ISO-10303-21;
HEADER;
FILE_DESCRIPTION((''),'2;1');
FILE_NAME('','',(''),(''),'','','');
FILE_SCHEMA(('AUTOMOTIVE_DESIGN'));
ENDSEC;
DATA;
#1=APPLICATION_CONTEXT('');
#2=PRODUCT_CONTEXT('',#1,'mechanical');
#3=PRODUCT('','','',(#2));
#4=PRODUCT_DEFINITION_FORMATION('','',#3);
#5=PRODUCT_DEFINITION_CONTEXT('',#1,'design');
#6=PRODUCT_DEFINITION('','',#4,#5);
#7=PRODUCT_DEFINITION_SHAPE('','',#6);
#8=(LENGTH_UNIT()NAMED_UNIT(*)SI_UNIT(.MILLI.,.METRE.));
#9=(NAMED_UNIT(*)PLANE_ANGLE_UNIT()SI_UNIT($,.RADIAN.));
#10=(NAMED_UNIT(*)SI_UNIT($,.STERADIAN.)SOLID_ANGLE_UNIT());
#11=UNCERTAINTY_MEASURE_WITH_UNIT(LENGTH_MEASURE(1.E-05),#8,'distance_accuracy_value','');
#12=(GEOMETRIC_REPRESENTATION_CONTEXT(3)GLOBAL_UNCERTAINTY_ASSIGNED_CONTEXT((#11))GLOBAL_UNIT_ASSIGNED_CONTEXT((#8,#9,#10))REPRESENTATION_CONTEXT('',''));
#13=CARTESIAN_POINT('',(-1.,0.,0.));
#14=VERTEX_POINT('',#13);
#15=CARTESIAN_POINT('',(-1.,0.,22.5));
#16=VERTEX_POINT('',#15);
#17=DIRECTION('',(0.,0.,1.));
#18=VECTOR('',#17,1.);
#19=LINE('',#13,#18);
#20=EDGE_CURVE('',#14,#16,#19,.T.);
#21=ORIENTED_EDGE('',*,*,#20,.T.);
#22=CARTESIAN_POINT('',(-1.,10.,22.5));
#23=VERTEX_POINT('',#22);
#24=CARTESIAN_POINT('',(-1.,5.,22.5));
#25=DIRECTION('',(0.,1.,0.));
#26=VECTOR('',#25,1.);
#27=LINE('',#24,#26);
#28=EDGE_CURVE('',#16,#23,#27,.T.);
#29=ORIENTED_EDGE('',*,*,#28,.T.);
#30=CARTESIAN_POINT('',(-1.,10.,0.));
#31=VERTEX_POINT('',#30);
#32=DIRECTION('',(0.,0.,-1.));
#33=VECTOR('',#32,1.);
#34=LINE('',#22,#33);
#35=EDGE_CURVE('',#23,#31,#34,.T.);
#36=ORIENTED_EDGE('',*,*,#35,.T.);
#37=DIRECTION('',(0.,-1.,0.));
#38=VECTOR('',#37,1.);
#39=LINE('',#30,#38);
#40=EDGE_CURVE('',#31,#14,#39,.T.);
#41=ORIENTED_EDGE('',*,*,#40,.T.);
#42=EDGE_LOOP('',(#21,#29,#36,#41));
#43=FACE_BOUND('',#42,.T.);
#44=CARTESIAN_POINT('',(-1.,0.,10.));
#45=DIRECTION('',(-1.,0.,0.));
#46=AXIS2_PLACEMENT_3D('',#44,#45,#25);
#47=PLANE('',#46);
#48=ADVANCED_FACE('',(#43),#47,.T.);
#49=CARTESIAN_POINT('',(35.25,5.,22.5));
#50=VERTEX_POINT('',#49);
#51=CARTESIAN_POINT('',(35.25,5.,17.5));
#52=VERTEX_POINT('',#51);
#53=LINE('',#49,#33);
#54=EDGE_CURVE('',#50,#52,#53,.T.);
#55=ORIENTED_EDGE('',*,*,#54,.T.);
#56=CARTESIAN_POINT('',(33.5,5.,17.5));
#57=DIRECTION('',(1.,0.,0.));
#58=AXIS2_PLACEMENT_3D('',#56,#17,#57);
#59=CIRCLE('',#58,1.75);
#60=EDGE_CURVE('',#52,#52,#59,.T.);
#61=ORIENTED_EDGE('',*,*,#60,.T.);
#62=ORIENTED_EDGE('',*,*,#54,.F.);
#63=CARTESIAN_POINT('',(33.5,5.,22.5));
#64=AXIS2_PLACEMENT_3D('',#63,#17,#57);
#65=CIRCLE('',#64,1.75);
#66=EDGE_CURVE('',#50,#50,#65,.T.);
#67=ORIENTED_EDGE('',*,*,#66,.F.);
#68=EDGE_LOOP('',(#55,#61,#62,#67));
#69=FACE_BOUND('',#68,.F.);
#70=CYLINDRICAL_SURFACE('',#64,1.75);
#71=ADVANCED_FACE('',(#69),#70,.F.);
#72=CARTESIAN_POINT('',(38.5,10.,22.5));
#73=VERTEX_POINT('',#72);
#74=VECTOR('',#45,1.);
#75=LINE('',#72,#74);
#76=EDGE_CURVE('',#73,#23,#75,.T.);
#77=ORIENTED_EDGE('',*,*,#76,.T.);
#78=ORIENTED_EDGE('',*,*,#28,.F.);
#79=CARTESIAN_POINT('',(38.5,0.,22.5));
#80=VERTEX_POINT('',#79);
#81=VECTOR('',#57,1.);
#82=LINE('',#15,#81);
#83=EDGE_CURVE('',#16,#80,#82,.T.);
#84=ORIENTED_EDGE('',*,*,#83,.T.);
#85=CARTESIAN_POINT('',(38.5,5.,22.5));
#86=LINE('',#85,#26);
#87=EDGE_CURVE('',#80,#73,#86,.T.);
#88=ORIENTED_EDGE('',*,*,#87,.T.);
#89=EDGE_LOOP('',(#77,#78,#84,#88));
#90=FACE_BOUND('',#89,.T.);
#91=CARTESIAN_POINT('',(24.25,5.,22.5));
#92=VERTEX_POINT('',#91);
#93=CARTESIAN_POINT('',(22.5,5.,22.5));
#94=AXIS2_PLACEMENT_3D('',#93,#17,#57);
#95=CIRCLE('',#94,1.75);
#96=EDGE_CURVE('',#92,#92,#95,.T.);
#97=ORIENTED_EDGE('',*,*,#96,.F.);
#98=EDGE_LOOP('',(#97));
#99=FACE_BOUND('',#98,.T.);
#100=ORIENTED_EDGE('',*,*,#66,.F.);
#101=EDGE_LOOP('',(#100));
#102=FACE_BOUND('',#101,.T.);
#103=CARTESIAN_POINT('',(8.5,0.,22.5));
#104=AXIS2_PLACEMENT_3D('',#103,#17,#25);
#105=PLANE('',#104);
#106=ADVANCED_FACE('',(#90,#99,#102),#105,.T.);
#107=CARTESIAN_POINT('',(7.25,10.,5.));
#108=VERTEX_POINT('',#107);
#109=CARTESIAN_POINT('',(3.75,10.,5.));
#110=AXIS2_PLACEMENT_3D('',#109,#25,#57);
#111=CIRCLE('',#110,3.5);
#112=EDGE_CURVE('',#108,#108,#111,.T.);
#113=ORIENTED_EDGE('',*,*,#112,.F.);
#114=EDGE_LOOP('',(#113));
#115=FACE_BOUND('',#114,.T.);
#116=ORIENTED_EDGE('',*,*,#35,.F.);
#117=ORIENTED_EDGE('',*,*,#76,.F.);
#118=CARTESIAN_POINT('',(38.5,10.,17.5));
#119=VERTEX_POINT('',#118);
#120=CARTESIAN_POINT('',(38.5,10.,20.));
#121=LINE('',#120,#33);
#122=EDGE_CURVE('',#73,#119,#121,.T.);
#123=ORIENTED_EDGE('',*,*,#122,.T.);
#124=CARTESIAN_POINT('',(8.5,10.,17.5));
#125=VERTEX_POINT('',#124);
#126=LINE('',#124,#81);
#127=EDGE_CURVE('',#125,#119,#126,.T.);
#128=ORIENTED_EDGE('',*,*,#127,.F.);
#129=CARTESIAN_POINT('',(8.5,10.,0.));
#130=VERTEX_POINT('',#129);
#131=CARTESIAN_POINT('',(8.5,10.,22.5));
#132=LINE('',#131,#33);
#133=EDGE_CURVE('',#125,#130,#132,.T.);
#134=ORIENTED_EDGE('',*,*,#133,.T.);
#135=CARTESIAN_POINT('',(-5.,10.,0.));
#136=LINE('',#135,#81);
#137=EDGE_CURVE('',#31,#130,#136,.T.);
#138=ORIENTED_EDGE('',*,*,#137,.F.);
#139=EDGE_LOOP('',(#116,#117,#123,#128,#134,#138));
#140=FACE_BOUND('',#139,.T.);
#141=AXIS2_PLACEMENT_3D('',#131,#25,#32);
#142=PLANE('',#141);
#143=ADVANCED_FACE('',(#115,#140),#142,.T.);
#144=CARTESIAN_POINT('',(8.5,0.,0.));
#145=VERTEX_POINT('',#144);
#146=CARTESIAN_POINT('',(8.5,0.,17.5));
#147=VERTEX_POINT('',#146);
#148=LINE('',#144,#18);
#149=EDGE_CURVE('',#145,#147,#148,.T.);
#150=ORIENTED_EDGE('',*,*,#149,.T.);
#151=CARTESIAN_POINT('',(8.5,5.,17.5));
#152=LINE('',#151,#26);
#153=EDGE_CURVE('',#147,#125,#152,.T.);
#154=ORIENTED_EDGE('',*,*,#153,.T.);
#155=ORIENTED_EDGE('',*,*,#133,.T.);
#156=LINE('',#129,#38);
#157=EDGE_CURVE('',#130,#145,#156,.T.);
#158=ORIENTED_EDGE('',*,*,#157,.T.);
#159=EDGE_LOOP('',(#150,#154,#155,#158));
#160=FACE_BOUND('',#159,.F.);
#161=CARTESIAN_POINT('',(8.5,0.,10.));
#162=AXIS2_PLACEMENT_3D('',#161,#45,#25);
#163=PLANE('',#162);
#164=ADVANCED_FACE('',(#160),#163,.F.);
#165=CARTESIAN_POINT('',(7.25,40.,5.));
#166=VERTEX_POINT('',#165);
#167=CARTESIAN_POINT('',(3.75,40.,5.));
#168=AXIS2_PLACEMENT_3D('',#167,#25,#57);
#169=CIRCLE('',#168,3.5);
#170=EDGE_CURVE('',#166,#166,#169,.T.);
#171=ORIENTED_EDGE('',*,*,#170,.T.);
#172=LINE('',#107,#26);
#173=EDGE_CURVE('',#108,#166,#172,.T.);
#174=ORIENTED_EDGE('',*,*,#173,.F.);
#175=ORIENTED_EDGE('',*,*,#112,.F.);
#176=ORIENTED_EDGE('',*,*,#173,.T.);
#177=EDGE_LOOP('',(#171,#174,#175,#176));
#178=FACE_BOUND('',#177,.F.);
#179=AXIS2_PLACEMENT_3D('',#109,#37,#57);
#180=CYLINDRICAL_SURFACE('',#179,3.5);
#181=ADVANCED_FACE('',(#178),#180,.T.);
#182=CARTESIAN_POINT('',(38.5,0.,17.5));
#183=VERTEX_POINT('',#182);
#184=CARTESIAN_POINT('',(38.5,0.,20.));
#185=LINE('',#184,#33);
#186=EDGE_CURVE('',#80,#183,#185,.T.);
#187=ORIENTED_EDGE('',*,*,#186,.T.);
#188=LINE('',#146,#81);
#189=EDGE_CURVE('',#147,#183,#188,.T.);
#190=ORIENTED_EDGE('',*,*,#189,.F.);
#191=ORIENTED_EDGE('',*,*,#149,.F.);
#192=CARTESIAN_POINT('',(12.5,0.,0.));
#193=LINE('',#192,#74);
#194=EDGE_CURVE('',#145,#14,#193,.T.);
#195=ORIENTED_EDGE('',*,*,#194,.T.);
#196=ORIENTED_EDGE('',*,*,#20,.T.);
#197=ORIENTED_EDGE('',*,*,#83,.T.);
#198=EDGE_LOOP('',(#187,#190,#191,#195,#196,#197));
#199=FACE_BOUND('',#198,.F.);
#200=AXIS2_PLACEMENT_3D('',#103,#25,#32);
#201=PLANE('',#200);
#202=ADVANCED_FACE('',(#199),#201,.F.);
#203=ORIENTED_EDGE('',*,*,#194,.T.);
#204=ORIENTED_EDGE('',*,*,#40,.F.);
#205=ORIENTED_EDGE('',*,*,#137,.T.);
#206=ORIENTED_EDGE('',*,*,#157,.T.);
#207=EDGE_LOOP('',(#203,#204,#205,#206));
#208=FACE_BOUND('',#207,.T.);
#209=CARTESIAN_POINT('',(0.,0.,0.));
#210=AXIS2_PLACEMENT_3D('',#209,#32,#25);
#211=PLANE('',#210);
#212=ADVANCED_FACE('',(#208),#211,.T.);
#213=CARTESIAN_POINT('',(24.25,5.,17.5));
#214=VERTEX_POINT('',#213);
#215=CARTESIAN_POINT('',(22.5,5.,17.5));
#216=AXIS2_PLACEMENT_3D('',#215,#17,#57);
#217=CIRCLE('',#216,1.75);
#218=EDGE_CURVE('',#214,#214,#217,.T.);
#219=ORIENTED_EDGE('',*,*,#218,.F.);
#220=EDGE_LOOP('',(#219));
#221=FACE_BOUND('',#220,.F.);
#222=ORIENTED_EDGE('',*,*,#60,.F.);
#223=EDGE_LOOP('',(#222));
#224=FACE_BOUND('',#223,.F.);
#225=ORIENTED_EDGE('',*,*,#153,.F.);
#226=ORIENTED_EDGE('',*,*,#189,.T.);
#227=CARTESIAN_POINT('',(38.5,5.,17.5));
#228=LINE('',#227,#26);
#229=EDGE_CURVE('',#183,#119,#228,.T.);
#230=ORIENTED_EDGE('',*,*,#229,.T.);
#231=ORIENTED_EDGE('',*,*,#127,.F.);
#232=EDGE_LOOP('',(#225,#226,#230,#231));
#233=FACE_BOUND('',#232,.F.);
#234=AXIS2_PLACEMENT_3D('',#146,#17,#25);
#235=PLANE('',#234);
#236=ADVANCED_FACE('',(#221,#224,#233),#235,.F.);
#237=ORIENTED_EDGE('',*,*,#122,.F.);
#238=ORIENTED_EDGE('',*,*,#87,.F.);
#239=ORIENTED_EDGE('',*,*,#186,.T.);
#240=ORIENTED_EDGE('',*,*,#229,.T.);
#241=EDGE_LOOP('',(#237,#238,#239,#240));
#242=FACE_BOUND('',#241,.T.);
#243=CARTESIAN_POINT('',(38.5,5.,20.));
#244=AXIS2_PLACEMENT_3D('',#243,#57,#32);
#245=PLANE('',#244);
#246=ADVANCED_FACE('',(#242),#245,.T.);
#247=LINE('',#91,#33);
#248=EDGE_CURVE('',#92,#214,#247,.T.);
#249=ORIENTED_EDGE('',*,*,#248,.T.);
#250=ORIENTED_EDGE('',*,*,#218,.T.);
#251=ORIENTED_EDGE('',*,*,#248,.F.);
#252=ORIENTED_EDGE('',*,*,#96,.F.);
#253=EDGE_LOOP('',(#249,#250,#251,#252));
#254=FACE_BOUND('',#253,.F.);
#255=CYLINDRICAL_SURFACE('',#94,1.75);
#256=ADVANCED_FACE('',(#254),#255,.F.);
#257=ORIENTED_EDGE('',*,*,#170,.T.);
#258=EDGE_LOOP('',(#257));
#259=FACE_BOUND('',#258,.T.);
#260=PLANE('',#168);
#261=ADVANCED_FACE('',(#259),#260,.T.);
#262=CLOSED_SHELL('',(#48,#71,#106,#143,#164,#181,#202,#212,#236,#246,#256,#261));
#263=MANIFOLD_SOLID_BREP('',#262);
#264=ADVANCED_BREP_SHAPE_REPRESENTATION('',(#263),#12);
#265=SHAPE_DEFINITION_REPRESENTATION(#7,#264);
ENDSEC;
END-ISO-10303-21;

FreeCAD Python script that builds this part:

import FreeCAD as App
import Part
import Sketcher
from FreeCAD import Vector
Q = App.Units.Quantity

doc = App.newDocument("Part")
body = doc.addObject("PartDesign::Body", "Body")

# Sketch on XY plane
sketch1 = body.newObject("Sketcher::SketchObject", "Sketch")
sketch1.AttachmentSupport = (doc.getObject("XY_Plane"), [""])
sketch1.MapMode = "FlatFace"
sketch1.addGeometry([
    Part.LineSegment(Vector(0, 10, 0), Vector(0, 0, 0)),
    Part.LineSegment(Vector(0, 0, 0), Vector(12, 0, 0)),
    Part.LineSegment(Vector(12, 0, 0), Vector(12, 10, 0)),
    Part.LineSegment(Vector(12, 10, 0), Vector(0, 10, 0)),
], False)
sketch1.addConstraint([
    Sketcher.Constraint("Coincident", 0, 2, 1, 1),
    Sketcher.Constraint("Coincident", 1, 2, 2, 1),
    Sketcher.Constraint("Coincident", 2, 2, 3, 1),
    Sketcher.Constraint("Coincident", 3, 2, 0, 1),
    Sketcher.Constraint("Vertical", 0),
    Sketcher.Constraint("Horizontal", 1),
    Sketcher.Constraint("Vertical", 2),
    Sketcher.Constraint("Horizontal", 3),
    Sketcher.Constraint("Coincident", 0, 2, -1, 1),
    Sketcher.Constraint("DistanceY", 0, 2, 0, 1, Q("10 mm")),
    Sketcher.Constraint("DistanceX", 1, 1, 1, 2, Q("12.5 mm")),
])
pad1 = body.newObject("PartDesign::Pad", "Pad")
pad1.Profile = sketch1
pad1.Length = 10

# Sketch on YZ plane
sketch2 = body.newObject("Sketcher::SketchObject", "Sketch001")
sketch2.AttachmentSupport = (doc.getObject("YZ_Plane"), [""])
sketch2.MapMode = "FlatFace"
sketch2.addGeometry([
    Part.LineSegment(Vector(10, 0, 0), Vector(0, 0, 0)),
    Part.LineSegment(Vector(0, 0, 0), Vector(0, 10, 0)),
    Part.LineSegment(Vector(0, 10, 0), Vector(10, 10, 0)),
    Part.LineSegment(Vector(10, 10, 0), Vector(10, 0, 0)),
], False)
sketch2.addConstraint([
    Sketcher.Constraint("Coincident", 0, 2, 1, 1),
    Sketcher.Constraint("Coincident", 1, 2, 2, 1),
    Sketcher.Constraint("Coincident", 2, 2, 3, 1),
    Sketcher.Constraint("Coincident", 3, 2, 0, 1),
    Sketcher.Constraint("Horizontal", 0),
    Sketcher.Constraint("Vertical", 1),
    Sketcher.Constraint("Horizontal", 2),
    Sketcher.Constraint("Vertical", 3),
    Sketcher.Constraint("Coincident", 0, 2, -1, 1),
    Sketcher.Constraint("Equal", 2, 1),
    Sketcher.Constraint("DistanceX", 0, 2, 0, 1, Q("10 mm")),
])
pad2 = body.newObject("PartDesign::Pad", "Pad001")
pad2.Profile = sketch2
pad2.Length = 5
pad2.Reversed = True

# Sketch on XZ plane
sketch3 = body.newObject("Sketcher::SketchObject", "Sketch002")
sketch3.AttachmentSupport = (doc.getObject("XZ_Plane"), [""])
sketch3.MapMode = "FlatFace"
sketch3.AttachmentOffset = App.Placement(Vector(0, 0, -10), App.Rotation())
sketch3.addGeometry(Part.Circle(Vector(3.8, 5, 0), Vector(0, 0, 1), 3.5), False)
sketch3.addConstraint([
    Sketcher.Constraint("Diameter", 0, Q("7 mm")),
    Sketcher.Constraint("DistanceY", -1, 1, 0, 3, Q("5 mm")),
    Sketcher.Constraint("DistanceX", -1, 1, 0, 3, Q("3.75 mm")),
])
pad3 = body.newObject("PartDesign::Pad", "Pad002")
pad3.Profile = sketch3
pad3.Length = 30
pad3.Reversed = True

# Sketch on XZ plane
sketch4 = body.newObject("Sketcher::SketchObject", "Sketch003")
sketch4.AttachmentSupport = (doc.getObject("XZ_Plane"), [""])
sketch4.MapMode = "FlatFace"
sketch4.AttachmentOffset = App.Placement(Vector(0, 0, -10), App.Rotation())
sketch4.addGeometry([
    Part.LineSegment(Vector(8.5, 0, 0), Vector(8.5, 10, 0)),  # 0
    Part.LineSegment(Vector(8.5, 10, 0), Vector(12.5, 10, 0)),  # 1
    Part.LineSegment(Vector(12.5, 10, 0), Vector(12.5, 0, 0)),  # 2
    Part.LineSegment(Vector(12.5, 0, 0), Vector(8.5, 0, 0)),  # 3
    Part.LineSegment(Vector(-5, 0, 0), Vector(-5, 10, 0)),  # 4
    Part.LineSegment(Vector(-5, 10, 0), Vector(-1, 10, 0)),  # 5
    Part.LineSegment(Vector(-1, 10, 0), Vector(-1, 0, 0)),  # 6
    Part.LineSegment(Vector(-1, 0, 0), Vector(-5, 0, 0)),  # 7
], False)
sketch4.addConstraint([
    Sketcher.Constraint("Coincident", 0, 2, 1, 1),
    Sketcher.Constraint("Coincident", 1, 2, 2, 1),
    Sketcher.Constraint("Coincident", 2, 2, 3, 1),
    Sketcher.Constraint("Coincident", 3, 2, 0, 1),
    Sketcher.Constraint("Coincident", 4, 2, 5, 1),
    Sketcher.Constraint("Coincident", 5, 2, 6, 1),
    Sketcher.Constraint("Coincident", 6, 2, 7, 1),
    Sketcher.Constraint("Coincident", 7, 2, 4, 1),
    Sketcher.Constraint("Vertical", 0),
    Sketcher.Constraint("Horizontal", 1),
    Sketcher.Constraint("Vertical", 2),
    Sketcher.Constraint("Horizontal", 3),
    Sketcher.Constraint("Vertical", 4),
    Sketcher.Constraint("Horizontal", 5),
    Sketcher.Constraint("Vertical", 6),
    Sketcher.Constraint("Horizontal", 7),
    Sketcher.Constraint("PointOnObject", 2, 2, -1),
    Sketcher.Constraint("PointOnObject", 6, 2, -1),
    Sketcher.Constraint("Horizontal", 1, 2, 4, 2),
    Sketcher.Constraint("Equal", 3, 5),
    Sketcher.Constraint("DistanceX", 1, 1, 1, 2, Q("4 mm")),
    Sketcher.Constraint("DistanceY", 0, 1, 0, 2, Q("10 mm")),
    Sketcher.Constraint("DistanceX", 4, 2, -1, 1, Q("5 mm")),
    Sketcher.Constraint("DistanceX", -1, 1, 0, 2, Q("8.5 mm")),
])
pocket1 = body.newObject("PartDesign::Pocket", "Pocket")
pocket1.Profile = sketch4
pocket1.Type = "ThroughAll"
pocket1.Reversed = True

# Sketch on XY plane
sketch5 = body.newObject("Sketcher::SketchObject", "Sketch004")
sketch5.AttachmentSupport = (doc.getObject("XY_Plane"), [""])
sketch5.MapMode = "FlatFace"
sketch5.AttachmentOffset = App.Placement(Vector(0, 0, 10), App.Rotation())
sketch5.addGeometry([
    Part.LineSegment(Vector(-1, 10, 0), Vector(-1, 0, 0)),
    Part.LineSegment(Vector(-1, 0, 0), Vector(8, 0, 0)),
    Part.LineSegment(Vector(8, 0, 0), Vector(8, 10, 0)),
    Part.LineSegment(Vector(8, 10, 0), Vector(-1, 10, 0)),
], False)
sketch5.addConstraint([
    Sketcher.Constraint("Coincident", 0, 2, 1, 1),
    Sketcher.Constraint("Coincident", 1, 2, 2, 1),
    Sketcher.Constraint("Coincident", 2, 2, 3, 1),
    Sketcher.Constraint("Coincident", 3, 2, 0, 1),
    Sketcher.Constraint("Vertical", 0),
    Sketcher.Constraint("Horizontal", 1),
    Sketcher.Constraint("Vertical", 2),
    Sketcher.Constraint("Horizontal", 3),
    Sketcher.Constraint("PointOnObject", 0, 2, -1),
    Sketcher.Constraint("DistanceY", 0, 2, 0, 1, Q("10 mm")),
    Sketcher.Constraint("DistanceX", 1, 1, 1, 2, Q("9.5 mm")),
    Sketcher.Constraint("DistanceX", 0, 2, -1, 1, Q("1 mm")),
])
pad4 = body.newObject("PartDesign::Pad", "Pad003")
pad4.Profile = sketch5
pad4.Length = 12.5

# Sketch on YZ plane
sketch6 = body.newObject("Sketcher::SketchObject", "Sketch005")
sketch6.AttachmentSupport = (doc.getObject("YZ_Plane"), [""])
sketch6.MapMode = "FlatFace"
sketch6.AttachmentOffset = App.Placement(Vector(0, 0, 8.5), App.Rotation())
sketch6.addGeometry([
    Part.LineSegment(Vector(10, 22, 0), Vector(0, 22, 0)),
    Part.LineSegment(Vector(0, 22, 0), Vector(0, 18, 0)),
    Part.LineSegment(Vector(0, 18, 0), Vector(10, 18, 0)),
    Part.LineSegment(Vector(10, 18, 0), Vector(10, 22, 0)),
], False)
sketch6.addConstraint([
    Sketcher.Constraint("Coincident", 0, 2, 1, 1),
    Sketcher.Constraint("Coincident", 1, 2, 2, 1),
    Sketcher.Constraint("Coincident", 2, 2, 3, 1),
    Sketcher.Constraint("Coincident", 3, 2, 0, 1),
    Sketcher.Constraint("Horizontal", 0),
    Sketcher.Constraint("Vertical", 1),
    Sketcher.Constraint("Horizontal", 2),
    Sketcher.Constraint("Vertical", 3),
    Sketcher.Constraint("PointOnObject", 0, 2, -2),
    Sketcher.Constraint("DistanceX", 0, 2, 0, 1, Q("10 mm")),
    Sketcher.Constraint("DistanceY", 1, 2, 1, 1, Q("5 mm")),
    Sketcher.Constraint("DistanceY", -1, 1, 0, 2, Q("22.5 mm")),
])
pad5 = body.newObject("PartDesign::Pad", "Pad004")
pad5.Profile = sketch6
pad5.Length = 30

# Sketch on XY plane
sketch7 = body.newObject("Sketcher::SketchObject", "Sketch006")
sketch7.AttachmentSupport = (doc.getObject("XY_Plane"), [""])
sketch7.MapMode = "FlatFace"
sketch7.AttachmentOffset = App.Placement(Vector(0, 0, 22.5), App.Rotation())
sketch7.addGeometry([
    Part.Circle(Vector(22.5, 5, 0), Vector(0, 0, 1), 1.8),
    Part.Circle(Vector(33.5, 5, 0), Vector(0, 0, 1), 1.8),
], False)
sketch7.addConstraint([
    Sketcher.Constraint("Equal", 0, 1),
    Sketcher.Constraint("Horizontal", 0, 3, 1, 3),
    Sketcher.Constraint("Diameter", 0, Q("3.5 mm")),
    Sketcher.Constraint("DistanceY", -1, 1, 0, 3, Q("5 mm")),
    Sketcher.Constraint("DistanceX", 0, 3, 1, 3, Q("11 mm")),
    Sketcher.Constraint("DistanceX", -1, 1, 0, 3, Q("22.5 mm")),
])
pocket2 = body.newObject("PartDesign::Pocket", "Pocket001")
pocket2.Profile = sketch7
pocket2.Type = "ThroughAll"

doc.recompute()
